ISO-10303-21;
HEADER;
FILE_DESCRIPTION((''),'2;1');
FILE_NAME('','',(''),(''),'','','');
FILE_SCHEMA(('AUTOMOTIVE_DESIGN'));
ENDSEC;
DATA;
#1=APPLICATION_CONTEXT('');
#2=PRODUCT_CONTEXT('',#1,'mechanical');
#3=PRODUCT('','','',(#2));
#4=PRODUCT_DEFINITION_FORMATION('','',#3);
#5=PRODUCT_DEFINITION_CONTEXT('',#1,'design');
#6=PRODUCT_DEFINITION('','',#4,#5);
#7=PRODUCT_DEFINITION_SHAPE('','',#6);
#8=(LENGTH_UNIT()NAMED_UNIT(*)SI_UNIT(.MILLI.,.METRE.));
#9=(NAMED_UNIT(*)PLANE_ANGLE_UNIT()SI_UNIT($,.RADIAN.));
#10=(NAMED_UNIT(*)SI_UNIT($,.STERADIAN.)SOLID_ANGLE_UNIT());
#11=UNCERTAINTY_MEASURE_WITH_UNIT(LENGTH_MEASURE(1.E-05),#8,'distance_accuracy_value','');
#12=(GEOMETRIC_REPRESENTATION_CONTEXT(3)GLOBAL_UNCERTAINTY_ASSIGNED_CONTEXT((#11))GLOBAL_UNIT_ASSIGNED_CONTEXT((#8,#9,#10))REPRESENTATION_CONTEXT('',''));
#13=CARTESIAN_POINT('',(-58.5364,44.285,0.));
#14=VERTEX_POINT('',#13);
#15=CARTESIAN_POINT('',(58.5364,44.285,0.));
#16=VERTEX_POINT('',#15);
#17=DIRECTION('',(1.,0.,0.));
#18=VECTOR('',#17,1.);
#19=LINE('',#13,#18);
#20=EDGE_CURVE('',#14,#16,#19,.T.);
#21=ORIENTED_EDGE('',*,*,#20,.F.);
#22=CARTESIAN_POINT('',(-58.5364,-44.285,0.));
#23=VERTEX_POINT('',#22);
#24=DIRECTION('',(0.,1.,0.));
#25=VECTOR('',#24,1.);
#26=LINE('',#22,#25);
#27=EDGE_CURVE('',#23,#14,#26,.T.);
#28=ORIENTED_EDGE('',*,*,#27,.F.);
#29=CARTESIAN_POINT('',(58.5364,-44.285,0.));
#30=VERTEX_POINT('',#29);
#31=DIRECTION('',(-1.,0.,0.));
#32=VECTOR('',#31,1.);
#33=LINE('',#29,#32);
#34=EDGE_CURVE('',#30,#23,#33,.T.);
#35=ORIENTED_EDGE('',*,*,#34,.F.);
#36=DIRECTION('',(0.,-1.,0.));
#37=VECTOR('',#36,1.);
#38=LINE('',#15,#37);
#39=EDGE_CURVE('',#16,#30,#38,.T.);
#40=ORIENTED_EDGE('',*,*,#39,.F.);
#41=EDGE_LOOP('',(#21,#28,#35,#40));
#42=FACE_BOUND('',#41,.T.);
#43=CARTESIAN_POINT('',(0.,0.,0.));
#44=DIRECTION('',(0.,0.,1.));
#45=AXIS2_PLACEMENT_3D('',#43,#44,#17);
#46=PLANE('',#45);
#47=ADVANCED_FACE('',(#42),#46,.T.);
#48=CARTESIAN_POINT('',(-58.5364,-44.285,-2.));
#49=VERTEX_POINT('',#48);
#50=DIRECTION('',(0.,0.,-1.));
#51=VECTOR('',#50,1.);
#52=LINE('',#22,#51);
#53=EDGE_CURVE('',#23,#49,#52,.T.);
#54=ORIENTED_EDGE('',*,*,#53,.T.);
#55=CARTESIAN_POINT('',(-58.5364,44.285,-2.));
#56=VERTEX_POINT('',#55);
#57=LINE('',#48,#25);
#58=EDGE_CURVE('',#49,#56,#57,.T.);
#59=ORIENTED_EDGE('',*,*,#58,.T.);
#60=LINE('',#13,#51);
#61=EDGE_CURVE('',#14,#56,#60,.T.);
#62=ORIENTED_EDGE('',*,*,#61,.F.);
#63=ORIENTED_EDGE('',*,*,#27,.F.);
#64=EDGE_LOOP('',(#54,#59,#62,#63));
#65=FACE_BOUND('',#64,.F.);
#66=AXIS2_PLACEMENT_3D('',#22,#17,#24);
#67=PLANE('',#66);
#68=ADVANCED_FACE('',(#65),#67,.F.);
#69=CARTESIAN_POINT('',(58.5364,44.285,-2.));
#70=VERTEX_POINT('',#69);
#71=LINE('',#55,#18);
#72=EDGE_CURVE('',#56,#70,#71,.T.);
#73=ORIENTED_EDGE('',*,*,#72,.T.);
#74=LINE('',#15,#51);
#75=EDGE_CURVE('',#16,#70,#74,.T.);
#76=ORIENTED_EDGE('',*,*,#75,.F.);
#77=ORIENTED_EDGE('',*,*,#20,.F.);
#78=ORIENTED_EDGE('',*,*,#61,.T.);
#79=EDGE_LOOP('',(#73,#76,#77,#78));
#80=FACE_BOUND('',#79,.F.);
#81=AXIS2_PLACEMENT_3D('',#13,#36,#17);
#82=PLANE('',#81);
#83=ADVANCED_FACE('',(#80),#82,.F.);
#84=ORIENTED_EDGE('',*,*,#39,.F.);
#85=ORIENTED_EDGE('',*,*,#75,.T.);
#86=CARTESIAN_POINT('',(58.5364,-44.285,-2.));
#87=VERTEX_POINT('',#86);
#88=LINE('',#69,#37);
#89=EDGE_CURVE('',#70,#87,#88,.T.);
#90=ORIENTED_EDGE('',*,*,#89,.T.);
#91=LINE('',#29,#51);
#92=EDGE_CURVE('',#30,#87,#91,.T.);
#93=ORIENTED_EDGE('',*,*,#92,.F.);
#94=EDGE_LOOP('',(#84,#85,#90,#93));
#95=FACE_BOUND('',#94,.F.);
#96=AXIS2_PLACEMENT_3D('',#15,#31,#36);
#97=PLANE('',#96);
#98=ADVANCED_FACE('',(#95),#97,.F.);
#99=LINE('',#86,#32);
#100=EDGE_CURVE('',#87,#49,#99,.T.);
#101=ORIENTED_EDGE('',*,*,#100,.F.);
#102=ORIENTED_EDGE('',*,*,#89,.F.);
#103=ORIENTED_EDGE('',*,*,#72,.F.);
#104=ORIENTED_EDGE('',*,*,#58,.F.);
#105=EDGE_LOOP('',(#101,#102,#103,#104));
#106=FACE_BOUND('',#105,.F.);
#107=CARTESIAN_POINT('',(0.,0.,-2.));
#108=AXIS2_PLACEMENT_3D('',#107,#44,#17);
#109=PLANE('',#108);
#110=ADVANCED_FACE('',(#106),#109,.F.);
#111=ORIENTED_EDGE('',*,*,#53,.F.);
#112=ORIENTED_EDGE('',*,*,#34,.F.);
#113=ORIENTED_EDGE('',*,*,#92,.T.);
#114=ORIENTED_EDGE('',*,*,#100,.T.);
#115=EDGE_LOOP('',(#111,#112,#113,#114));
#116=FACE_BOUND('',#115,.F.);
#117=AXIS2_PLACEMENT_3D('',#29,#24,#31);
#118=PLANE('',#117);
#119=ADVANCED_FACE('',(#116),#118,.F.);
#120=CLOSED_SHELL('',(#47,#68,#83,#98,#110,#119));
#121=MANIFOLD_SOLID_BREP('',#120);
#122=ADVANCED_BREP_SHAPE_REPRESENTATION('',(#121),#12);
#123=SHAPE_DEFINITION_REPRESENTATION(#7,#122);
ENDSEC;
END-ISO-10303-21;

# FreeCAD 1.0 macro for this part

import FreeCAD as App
import Part
import Sketcher
from FreeCAD import Vector
Q = App.Units.Quantity


def add_polygon(sketch, points):
    """Adds a closed chain of lines whose ends are joined by coincident constraints."""
    first, n = sketch.GeometryCount, len(points)
    for a, b in zip(points, points[1:] + points[:1]):
        sketch.addGeometry(Part.LineSegment(App.Vector(*a, 0), App.Vector(*b, 0)), False)
    for i in range(n):
        sketch.addConstraint(Sketcher.Constraint("Coincident", first + i, 2, first + (i + 1) % n, 1))

doc = App.newDocument("Part")
body = doc.addObject("PartDesign::Body", "Body")

# Sketch on XY plane
sketch1 = body.newObject("Sketcher::SketchObject", "Sketch")
sketch1.AttachmentSupport = (doc.getObject("XY_Plane"), [""])
sketch1.MapMode = "FlatFace"
add_polygon(sketch1, [(58.5364, 44.285), (-58.5364, 44.285), (-58.5364, -44.285), (58.5364, -44.285)])  # lines 0-3
sketch1.addConstraint(Sketcher.Constraint("Horizontal", 0))
sketch1.addConstraint(Sketcher.Constraint("Vertical", 1))
sketch1.addConstraint(Sketcher.Constraint("Horizontal", 2))
sketch1.addConstraint(Sketcher.Constraint("Vertical", 3))
sketch1.addConstraint(Sketcher.Constraint("Symmetric", 0, 2, 2, 2, -1, 1))
sketch1.addConstraint(Sketcher.Constraint("DistanceY", 1, 2, 1, 1, Q("88.57 mm")))
sketch1.addConstraint(Sketcher.Constraint("DistanceX", 0, 2, 0, 1, Q("117.0728 mm")))
pad1 = body.newObject("PartDesign::Pad", "Pad")
pad1.Profile = sketch1
pad1.Length = 2
pad1.Reversed = True

doc.recompute()
